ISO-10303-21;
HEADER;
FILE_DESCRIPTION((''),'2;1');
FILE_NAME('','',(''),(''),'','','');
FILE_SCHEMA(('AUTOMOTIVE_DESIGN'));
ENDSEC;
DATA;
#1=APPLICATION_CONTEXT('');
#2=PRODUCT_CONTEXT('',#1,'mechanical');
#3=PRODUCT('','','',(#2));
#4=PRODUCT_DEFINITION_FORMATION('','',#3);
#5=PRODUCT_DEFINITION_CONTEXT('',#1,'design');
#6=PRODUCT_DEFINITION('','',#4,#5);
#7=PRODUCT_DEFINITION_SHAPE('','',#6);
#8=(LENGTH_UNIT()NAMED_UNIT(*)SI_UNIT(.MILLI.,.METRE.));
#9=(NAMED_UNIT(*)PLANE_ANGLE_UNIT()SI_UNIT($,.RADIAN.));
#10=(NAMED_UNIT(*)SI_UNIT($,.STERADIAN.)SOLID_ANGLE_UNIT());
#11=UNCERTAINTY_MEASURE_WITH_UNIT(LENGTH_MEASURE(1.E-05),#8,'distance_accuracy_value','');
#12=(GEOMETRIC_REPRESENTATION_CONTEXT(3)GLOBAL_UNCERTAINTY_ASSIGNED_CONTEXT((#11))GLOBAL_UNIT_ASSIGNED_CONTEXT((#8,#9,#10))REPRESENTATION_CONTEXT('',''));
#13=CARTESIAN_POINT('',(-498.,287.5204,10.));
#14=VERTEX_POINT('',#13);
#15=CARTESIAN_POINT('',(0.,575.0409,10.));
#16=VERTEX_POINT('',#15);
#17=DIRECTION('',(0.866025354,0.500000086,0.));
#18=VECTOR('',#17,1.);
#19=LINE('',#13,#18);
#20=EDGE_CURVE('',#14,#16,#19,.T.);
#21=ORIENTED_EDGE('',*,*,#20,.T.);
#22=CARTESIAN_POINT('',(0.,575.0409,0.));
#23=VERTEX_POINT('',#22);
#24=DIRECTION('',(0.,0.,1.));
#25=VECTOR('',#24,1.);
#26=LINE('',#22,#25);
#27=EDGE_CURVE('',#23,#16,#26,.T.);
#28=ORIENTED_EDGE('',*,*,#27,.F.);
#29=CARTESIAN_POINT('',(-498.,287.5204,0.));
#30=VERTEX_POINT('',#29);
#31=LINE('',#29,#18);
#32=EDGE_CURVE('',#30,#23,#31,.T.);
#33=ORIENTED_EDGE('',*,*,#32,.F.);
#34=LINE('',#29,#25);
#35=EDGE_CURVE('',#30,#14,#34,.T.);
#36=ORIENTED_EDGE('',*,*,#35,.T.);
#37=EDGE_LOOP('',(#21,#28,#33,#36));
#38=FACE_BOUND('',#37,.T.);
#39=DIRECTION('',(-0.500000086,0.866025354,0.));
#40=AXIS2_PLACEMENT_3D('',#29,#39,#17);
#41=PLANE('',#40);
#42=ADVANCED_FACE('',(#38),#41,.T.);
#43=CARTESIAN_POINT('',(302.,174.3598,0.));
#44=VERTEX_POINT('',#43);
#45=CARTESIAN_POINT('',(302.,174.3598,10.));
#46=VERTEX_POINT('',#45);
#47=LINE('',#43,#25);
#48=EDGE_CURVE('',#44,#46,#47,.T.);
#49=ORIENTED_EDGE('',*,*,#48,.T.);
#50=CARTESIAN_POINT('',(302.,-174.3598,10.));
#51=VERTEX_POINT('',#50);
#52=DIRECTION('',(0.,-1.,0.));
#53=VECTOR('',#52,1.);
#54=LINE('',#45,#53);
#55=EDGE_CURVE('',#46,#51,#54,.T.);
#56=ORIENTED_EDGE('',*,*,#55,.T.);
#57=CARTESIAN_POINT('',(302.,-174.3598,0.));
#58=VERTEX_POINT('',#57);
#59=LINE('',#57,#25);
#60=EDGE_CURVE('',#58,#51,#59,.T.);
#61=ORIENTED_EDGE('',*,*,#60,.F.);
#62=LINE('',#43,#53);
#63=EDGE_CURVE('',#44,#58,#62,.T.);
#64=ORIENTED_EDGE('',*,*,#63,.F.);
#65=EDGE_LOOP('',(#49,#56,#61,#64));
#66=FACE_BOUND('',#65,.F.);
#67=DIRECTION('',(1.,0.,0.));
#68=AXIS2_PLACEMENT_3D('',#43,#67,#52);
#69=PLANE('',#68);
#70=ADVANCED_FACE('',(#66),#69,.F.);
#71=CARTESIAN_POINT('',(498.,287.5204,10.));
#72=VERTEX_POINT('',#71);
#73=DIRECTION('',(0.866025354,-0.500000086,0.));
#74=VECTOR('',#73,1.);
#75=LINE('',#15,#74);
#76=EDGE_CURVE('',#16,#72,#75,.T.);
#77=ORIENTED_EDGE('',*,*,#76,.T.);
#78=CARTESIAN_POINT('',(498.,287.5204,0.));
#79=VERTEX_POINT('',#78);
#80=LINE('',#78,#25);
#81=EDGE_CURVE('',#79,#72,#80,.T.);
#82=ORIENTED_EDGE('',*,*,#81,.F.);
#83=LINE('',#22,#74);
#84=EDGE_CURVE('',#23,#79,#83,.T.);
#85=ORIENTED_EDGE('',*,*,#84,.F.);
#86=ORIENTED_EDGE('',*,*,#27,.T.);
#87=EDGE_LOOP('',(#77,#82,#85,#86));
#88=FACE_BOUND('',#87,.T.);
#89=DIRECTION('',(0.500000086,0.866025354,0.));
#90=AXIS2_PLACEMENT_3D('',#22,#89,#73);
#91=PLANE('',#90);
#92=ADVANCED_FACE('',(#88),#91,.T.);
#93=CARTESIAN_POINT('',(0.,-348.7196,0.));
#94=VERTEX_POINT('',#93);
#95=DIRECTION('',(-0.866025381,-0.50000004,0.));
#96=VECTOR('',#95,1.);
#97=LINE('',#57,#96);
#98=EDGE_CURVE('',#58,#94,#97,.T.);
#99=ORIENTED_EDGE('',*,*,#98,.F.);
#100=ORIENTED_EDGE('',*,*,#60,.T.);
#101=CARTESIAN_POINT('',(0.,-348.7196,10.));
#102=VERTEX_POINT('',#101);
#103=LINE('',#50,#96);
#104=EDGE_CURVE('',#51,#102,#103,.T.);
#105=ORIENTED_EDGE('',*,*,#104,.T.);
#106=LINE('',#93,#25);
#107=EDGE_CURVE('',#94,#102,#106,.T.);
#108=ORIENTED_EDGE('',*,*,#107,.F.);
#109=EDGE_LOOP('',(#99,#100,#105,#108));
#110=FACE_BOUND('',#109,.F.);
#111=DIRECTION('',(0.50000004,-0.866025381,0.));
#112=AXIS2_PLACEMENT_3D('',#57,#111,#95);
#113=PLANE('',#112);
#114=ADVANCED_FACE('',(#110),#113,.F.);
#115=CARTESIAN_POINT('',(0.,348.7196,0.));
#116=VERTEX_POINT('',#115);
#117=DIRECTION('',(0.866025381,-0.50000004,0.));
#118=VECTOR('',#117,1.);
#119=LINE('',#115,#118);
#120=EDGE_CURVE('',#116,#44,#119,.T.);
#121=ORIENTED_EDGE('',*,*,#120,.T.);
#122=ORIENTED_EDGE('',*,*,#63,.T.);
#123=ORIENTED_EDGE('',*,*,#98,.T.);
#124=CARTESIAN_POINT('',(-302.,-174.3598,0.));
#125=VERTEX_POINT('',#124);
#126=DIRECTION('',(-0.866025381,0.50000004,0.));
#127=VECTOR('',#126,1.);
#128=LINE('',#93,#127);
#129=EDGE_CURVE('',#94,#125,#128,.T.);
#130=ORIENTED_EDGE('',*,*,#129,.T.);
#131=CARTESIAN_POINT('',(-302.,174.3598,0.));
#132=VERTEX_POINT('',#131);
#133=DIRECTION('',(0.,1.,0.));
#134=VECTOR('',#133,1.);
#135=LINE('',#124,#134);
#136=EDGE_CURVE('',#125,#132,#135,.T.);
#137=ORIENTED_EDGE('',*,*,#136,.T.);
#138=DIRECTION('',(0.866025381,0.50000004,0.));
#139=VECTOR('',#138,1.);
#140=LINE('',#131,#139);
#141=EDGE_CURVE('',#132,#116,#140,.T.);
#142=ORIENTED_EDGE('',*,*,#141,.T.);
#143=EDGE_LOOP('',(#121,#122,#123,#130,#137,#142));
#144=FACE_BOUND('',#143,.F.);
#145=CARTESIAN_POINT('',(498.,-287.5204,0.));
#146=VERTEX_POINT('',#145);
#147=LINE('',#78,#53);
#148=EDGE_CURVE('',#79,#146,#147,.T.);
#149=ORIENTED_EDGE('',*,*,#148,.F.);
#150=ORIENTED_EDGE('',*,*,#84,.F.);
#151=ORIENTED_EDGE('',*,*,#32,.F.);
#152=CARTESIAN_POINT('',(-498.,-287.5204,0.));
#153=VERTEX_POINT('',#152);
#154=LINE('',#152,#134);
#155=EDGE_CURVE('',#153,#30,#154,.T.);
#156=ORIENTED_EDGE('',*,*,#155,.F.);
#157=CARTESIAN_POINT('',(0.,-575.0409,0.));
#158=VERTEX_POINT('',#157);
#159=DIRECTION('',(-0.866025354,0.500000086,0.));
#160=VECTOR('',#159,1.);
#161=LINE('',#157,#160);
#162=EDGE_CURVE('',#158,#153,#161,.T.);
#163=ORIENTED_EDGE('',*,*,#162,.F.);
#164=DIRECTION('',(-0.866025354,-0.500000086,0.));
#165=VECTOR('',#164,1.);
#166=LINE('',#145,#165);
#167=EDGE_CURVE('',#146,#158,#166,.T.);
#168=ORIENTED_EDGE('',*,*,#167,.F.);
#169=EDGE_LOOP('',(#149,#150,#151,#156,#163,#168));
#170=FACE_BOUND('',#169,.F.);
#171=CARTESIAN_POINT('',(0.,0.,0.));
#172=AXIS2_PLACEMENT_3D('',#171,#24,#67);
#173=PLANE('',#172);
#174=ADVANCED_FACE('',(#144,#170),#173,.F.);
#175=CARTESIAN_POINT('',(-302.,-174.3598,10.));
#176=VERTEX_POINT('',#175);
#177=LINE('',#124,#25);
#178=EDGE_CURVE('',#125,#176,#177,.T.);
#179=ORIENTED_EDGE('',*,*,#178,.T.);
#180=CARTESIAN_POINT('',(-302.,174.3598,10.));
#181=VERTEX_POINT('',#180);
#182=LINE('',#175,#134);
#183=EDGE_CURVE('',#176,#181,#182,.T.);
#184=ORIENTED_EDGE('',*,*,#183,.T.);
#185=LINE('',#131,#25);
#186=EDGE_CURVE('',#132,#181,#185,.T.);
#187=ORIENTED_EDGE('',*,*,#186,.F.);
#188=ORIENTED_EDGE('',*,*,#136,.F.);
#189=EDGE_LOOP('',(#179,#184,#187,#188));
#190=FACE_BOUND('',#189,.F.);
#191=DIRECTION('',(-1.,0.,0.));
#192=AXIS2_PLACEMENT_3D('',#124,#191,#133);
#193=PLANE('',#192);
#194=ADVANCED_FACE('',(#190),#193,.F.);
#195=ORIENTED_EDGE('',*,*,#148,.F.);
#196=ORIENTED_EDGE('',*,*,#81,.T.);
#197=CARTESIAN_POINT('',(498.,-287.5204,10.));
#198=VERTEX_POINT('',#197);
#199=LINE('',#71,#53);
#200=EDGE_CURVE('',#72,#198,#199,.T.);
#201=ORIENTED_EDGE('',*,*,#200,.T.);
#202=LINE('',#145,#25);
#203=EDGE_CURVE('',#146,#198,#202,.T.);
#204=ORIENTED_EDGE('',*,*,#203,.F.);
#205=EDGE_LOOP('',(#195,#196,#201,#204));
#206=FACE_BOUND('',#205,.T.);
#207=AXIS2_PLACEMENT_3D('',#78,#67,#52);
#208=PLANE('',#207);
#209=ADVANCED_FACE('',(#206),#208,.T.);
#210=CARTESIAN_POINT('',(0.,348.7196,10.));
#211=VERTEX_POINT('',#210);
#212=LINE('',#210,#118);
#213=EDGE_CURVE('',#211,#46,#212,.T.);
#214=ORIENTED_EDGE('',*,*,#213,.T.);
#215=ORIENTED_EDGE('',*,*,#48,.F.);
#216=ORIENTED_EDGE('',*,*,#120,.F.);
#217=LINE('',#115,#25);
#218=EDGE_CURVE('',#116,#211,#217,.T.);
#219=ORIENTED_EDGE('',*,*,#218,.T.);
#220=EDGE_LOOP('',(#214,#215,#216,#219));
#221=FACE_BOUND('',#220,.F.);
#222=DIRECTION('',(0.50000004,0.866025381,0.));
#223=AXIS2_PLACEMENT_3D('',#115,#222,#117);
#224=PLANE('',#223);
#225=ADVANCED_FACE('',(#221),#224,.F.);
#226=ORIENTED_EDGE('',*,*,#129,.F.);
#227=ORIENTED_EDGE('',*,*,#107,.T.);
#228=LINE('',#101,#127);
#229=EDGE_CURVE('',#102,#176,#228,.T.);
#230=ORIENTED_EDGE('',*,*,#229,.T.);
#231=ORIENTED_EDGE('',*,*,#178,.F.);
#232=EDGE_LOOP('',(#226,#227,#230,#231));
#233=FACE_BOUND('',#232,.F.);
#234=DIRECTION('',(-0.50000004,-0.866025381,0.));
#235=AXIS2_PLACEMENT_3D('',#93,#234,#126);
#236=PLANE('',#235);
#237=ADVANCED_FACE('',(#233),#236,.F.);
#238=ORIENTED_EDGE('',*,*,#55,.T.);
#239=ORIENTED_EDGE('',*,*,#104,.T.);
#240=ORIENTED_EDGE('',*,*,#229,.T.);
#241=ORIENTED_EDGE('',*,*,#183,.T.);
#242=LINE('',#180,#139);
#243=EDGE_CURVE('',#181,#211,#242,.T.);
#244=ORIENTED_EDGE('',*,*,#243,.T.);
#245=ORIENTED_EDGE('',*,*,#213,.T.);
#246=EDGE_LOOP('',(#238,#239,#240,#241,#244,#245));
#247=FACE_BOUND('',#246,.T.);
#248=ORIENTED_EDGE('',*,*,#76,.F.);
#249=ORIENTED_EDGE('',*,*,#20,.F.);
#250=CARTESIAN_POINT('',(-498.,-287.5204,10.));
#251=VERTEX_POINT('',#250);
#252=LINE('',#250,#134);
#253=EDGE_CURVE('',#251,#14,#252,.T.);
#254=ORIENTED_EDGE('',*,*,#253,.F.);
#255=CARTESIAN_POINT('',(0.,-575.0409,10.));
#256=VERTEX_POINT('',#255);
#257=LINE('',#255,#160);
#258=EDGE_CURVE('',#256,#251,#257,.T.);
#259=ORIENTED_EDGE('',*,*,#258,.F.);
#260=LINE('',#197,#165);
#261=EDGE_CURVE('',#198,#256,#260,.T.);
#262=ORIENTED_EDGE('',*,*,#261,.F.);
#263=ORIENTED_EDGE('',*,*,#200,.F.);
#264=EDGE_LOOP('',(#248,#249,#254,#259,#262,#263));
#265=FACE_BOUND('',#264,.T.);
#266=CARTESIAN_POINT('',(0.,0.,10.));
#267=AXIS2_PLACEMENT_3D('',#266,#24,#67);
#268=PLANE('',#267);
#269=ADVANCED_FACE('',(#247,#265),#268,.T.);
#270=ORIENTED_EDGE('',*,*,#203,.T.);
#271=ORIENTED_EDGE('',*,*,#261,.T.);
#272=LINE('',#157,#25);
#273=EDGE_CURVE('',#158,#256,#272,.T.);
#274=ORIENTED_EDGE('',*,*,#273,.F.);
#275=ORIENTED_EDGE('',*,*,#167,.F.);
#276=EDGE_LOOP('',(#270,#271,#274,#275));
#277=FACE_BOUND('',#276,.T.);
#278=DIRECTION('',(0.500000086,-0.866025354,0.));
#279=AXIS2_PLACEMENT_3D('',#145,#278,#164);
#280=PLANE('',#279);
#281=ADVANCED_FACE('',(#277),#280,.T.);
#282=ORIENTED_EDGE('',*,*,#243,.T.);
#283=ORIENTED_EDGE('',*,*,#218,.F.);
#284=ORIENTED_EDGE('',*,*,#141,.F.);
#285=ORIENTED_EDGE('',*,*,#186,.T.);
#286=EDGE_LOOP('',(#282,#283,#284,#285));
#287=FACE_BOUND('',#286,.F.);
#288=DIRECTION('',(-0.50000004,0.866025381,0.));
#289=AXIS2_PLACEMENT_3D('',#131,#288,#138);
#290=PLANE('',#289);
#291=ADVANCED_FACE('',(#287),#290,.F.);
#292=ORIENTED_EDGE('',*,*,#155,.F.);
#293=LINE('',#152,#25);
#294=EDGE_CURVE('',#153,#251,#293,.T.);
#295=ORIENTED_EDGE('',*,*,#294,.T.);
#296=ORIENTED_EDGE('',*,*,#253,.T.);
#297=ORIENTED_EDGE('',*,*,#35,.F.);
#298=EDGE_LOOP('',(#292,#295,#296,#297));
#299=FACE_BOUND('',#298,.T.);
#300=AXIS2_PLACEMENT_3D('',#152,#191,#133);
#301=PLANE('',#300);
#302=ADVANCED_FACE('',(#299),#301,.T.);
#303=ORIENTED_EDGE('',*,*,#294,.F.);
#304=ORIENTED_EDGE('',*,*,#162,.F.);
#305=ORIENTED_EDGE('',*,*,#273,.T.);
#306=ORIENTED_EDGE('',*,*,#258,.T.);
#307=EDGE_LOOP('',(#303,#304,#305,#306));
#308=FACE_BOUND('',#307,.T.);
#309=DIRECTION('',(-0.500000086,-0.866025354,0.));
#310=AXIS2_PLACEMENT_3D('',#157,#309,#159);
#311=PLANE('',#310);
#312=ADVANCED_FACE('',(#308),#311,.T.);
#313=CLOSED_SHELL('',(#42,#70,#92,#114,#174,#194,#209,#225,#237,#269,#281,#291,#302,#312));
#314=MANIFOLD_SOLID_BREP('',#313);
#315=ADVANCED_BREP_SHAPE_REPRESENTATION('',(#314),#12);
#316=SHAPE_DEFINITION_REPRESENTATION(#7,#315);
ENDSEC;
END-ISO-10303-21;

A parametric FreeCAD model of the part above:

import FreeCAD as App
import Part
import Sketcher

V = App.Vector
Q = App.Units.Quantity


def add_polygon(sketch, points):
    """Adds a closed chain of lines whose ends are joined by coincident constraints."""
    first, n = sketch.GeometryCount, len(points)
    for a, b in zip(points, points[1:] + points[:1]):
        sketch.addGeometry(Part.LineSegment(App.Vector(*a, 0), App.Vector(*b, 0)), False)
    for i in range(n):
        sketch.addConstraint(Sketcher.Constraint("Coincident", first + i, 2, first + (i + 1) % n, 1))

doc = App.newDocument("Part")
body = doc.addObject("PartDesign::Body", "Body")

sketch1 = body.newObject("Sketcher::SketchObject", "Sketch")
sketch1.AttachmentSupport = (doc.getObject("XY_Plane"), [""])
sketch1.MapMode = "FlatFace"
add_polygon(sketch1, [(0, -575), (498, -288), (498, 288), (0, 575), (-498, 288), (-498, -288)])
add_polygon(sketch1, [(302, 174), (302, -174), (0, -349), (-302, -174), (-302, 174), (0, 349)])
sketch1.addConstraint([
    Sketcher.Constraint("Vertical", 1),
    Sketcher.Constraint("Vertical", 4),
    Sketcher.Constraint("Vertical", 6),
    Sketcher.Constraint("Vertical", 9),
    Sketcher.Constraint("Symmetric", 0, 2, 3, 2, -1, 1),
    Sketcher.Constraint("Symmetric", 2, 2, 5, 2, -1, 1),
    Sketcher.Constraint("Symmetric", 6, 2, 9, 2, -1, 1),
    Sketcher.Constraint("Symmetric", 7, 2, 10, 2, -1, 1),
    Sketcher.Constraint("PointOnObject", 2, 2, -2),
    Sketcher.Constraint("PointOnObject", 7, 2, -2),
    Sketcher.Constraint("Parallel", 2, 5),
    Sketcher.Constraint("Parallel", 3, 7),
    Sketcher.Constraint("Parallel", 5, 8),
    Sketcher.Constraint("Parallel", 8, 11),
    Sketcher.Constraint("Horizontal", 1, 2, 3, 2),
    Sketcher.Constraint("DistanceX", -1, 1, 0, 2, Q("498 mm")),
    Sketcher.Constraint("DistanceX", -1, 1, 6, 2, Q("302 mm")),
    Sketcher.Constraint("Angle", 0, Q("30 deg")),
    Sketcher.Constraint("DistanceY", 7, 2, 1, 2, Q("636.24 mm")),
    Sketcher.Constraint("DistanceY", 1, 1, 1, 2, Q("575.0408 mm")),
])
pad1 = body.newObject("PartDesign::Pad", "Pad")
pad1.Profile = sketch1
pad1.Length = 10

doc.recompute()
